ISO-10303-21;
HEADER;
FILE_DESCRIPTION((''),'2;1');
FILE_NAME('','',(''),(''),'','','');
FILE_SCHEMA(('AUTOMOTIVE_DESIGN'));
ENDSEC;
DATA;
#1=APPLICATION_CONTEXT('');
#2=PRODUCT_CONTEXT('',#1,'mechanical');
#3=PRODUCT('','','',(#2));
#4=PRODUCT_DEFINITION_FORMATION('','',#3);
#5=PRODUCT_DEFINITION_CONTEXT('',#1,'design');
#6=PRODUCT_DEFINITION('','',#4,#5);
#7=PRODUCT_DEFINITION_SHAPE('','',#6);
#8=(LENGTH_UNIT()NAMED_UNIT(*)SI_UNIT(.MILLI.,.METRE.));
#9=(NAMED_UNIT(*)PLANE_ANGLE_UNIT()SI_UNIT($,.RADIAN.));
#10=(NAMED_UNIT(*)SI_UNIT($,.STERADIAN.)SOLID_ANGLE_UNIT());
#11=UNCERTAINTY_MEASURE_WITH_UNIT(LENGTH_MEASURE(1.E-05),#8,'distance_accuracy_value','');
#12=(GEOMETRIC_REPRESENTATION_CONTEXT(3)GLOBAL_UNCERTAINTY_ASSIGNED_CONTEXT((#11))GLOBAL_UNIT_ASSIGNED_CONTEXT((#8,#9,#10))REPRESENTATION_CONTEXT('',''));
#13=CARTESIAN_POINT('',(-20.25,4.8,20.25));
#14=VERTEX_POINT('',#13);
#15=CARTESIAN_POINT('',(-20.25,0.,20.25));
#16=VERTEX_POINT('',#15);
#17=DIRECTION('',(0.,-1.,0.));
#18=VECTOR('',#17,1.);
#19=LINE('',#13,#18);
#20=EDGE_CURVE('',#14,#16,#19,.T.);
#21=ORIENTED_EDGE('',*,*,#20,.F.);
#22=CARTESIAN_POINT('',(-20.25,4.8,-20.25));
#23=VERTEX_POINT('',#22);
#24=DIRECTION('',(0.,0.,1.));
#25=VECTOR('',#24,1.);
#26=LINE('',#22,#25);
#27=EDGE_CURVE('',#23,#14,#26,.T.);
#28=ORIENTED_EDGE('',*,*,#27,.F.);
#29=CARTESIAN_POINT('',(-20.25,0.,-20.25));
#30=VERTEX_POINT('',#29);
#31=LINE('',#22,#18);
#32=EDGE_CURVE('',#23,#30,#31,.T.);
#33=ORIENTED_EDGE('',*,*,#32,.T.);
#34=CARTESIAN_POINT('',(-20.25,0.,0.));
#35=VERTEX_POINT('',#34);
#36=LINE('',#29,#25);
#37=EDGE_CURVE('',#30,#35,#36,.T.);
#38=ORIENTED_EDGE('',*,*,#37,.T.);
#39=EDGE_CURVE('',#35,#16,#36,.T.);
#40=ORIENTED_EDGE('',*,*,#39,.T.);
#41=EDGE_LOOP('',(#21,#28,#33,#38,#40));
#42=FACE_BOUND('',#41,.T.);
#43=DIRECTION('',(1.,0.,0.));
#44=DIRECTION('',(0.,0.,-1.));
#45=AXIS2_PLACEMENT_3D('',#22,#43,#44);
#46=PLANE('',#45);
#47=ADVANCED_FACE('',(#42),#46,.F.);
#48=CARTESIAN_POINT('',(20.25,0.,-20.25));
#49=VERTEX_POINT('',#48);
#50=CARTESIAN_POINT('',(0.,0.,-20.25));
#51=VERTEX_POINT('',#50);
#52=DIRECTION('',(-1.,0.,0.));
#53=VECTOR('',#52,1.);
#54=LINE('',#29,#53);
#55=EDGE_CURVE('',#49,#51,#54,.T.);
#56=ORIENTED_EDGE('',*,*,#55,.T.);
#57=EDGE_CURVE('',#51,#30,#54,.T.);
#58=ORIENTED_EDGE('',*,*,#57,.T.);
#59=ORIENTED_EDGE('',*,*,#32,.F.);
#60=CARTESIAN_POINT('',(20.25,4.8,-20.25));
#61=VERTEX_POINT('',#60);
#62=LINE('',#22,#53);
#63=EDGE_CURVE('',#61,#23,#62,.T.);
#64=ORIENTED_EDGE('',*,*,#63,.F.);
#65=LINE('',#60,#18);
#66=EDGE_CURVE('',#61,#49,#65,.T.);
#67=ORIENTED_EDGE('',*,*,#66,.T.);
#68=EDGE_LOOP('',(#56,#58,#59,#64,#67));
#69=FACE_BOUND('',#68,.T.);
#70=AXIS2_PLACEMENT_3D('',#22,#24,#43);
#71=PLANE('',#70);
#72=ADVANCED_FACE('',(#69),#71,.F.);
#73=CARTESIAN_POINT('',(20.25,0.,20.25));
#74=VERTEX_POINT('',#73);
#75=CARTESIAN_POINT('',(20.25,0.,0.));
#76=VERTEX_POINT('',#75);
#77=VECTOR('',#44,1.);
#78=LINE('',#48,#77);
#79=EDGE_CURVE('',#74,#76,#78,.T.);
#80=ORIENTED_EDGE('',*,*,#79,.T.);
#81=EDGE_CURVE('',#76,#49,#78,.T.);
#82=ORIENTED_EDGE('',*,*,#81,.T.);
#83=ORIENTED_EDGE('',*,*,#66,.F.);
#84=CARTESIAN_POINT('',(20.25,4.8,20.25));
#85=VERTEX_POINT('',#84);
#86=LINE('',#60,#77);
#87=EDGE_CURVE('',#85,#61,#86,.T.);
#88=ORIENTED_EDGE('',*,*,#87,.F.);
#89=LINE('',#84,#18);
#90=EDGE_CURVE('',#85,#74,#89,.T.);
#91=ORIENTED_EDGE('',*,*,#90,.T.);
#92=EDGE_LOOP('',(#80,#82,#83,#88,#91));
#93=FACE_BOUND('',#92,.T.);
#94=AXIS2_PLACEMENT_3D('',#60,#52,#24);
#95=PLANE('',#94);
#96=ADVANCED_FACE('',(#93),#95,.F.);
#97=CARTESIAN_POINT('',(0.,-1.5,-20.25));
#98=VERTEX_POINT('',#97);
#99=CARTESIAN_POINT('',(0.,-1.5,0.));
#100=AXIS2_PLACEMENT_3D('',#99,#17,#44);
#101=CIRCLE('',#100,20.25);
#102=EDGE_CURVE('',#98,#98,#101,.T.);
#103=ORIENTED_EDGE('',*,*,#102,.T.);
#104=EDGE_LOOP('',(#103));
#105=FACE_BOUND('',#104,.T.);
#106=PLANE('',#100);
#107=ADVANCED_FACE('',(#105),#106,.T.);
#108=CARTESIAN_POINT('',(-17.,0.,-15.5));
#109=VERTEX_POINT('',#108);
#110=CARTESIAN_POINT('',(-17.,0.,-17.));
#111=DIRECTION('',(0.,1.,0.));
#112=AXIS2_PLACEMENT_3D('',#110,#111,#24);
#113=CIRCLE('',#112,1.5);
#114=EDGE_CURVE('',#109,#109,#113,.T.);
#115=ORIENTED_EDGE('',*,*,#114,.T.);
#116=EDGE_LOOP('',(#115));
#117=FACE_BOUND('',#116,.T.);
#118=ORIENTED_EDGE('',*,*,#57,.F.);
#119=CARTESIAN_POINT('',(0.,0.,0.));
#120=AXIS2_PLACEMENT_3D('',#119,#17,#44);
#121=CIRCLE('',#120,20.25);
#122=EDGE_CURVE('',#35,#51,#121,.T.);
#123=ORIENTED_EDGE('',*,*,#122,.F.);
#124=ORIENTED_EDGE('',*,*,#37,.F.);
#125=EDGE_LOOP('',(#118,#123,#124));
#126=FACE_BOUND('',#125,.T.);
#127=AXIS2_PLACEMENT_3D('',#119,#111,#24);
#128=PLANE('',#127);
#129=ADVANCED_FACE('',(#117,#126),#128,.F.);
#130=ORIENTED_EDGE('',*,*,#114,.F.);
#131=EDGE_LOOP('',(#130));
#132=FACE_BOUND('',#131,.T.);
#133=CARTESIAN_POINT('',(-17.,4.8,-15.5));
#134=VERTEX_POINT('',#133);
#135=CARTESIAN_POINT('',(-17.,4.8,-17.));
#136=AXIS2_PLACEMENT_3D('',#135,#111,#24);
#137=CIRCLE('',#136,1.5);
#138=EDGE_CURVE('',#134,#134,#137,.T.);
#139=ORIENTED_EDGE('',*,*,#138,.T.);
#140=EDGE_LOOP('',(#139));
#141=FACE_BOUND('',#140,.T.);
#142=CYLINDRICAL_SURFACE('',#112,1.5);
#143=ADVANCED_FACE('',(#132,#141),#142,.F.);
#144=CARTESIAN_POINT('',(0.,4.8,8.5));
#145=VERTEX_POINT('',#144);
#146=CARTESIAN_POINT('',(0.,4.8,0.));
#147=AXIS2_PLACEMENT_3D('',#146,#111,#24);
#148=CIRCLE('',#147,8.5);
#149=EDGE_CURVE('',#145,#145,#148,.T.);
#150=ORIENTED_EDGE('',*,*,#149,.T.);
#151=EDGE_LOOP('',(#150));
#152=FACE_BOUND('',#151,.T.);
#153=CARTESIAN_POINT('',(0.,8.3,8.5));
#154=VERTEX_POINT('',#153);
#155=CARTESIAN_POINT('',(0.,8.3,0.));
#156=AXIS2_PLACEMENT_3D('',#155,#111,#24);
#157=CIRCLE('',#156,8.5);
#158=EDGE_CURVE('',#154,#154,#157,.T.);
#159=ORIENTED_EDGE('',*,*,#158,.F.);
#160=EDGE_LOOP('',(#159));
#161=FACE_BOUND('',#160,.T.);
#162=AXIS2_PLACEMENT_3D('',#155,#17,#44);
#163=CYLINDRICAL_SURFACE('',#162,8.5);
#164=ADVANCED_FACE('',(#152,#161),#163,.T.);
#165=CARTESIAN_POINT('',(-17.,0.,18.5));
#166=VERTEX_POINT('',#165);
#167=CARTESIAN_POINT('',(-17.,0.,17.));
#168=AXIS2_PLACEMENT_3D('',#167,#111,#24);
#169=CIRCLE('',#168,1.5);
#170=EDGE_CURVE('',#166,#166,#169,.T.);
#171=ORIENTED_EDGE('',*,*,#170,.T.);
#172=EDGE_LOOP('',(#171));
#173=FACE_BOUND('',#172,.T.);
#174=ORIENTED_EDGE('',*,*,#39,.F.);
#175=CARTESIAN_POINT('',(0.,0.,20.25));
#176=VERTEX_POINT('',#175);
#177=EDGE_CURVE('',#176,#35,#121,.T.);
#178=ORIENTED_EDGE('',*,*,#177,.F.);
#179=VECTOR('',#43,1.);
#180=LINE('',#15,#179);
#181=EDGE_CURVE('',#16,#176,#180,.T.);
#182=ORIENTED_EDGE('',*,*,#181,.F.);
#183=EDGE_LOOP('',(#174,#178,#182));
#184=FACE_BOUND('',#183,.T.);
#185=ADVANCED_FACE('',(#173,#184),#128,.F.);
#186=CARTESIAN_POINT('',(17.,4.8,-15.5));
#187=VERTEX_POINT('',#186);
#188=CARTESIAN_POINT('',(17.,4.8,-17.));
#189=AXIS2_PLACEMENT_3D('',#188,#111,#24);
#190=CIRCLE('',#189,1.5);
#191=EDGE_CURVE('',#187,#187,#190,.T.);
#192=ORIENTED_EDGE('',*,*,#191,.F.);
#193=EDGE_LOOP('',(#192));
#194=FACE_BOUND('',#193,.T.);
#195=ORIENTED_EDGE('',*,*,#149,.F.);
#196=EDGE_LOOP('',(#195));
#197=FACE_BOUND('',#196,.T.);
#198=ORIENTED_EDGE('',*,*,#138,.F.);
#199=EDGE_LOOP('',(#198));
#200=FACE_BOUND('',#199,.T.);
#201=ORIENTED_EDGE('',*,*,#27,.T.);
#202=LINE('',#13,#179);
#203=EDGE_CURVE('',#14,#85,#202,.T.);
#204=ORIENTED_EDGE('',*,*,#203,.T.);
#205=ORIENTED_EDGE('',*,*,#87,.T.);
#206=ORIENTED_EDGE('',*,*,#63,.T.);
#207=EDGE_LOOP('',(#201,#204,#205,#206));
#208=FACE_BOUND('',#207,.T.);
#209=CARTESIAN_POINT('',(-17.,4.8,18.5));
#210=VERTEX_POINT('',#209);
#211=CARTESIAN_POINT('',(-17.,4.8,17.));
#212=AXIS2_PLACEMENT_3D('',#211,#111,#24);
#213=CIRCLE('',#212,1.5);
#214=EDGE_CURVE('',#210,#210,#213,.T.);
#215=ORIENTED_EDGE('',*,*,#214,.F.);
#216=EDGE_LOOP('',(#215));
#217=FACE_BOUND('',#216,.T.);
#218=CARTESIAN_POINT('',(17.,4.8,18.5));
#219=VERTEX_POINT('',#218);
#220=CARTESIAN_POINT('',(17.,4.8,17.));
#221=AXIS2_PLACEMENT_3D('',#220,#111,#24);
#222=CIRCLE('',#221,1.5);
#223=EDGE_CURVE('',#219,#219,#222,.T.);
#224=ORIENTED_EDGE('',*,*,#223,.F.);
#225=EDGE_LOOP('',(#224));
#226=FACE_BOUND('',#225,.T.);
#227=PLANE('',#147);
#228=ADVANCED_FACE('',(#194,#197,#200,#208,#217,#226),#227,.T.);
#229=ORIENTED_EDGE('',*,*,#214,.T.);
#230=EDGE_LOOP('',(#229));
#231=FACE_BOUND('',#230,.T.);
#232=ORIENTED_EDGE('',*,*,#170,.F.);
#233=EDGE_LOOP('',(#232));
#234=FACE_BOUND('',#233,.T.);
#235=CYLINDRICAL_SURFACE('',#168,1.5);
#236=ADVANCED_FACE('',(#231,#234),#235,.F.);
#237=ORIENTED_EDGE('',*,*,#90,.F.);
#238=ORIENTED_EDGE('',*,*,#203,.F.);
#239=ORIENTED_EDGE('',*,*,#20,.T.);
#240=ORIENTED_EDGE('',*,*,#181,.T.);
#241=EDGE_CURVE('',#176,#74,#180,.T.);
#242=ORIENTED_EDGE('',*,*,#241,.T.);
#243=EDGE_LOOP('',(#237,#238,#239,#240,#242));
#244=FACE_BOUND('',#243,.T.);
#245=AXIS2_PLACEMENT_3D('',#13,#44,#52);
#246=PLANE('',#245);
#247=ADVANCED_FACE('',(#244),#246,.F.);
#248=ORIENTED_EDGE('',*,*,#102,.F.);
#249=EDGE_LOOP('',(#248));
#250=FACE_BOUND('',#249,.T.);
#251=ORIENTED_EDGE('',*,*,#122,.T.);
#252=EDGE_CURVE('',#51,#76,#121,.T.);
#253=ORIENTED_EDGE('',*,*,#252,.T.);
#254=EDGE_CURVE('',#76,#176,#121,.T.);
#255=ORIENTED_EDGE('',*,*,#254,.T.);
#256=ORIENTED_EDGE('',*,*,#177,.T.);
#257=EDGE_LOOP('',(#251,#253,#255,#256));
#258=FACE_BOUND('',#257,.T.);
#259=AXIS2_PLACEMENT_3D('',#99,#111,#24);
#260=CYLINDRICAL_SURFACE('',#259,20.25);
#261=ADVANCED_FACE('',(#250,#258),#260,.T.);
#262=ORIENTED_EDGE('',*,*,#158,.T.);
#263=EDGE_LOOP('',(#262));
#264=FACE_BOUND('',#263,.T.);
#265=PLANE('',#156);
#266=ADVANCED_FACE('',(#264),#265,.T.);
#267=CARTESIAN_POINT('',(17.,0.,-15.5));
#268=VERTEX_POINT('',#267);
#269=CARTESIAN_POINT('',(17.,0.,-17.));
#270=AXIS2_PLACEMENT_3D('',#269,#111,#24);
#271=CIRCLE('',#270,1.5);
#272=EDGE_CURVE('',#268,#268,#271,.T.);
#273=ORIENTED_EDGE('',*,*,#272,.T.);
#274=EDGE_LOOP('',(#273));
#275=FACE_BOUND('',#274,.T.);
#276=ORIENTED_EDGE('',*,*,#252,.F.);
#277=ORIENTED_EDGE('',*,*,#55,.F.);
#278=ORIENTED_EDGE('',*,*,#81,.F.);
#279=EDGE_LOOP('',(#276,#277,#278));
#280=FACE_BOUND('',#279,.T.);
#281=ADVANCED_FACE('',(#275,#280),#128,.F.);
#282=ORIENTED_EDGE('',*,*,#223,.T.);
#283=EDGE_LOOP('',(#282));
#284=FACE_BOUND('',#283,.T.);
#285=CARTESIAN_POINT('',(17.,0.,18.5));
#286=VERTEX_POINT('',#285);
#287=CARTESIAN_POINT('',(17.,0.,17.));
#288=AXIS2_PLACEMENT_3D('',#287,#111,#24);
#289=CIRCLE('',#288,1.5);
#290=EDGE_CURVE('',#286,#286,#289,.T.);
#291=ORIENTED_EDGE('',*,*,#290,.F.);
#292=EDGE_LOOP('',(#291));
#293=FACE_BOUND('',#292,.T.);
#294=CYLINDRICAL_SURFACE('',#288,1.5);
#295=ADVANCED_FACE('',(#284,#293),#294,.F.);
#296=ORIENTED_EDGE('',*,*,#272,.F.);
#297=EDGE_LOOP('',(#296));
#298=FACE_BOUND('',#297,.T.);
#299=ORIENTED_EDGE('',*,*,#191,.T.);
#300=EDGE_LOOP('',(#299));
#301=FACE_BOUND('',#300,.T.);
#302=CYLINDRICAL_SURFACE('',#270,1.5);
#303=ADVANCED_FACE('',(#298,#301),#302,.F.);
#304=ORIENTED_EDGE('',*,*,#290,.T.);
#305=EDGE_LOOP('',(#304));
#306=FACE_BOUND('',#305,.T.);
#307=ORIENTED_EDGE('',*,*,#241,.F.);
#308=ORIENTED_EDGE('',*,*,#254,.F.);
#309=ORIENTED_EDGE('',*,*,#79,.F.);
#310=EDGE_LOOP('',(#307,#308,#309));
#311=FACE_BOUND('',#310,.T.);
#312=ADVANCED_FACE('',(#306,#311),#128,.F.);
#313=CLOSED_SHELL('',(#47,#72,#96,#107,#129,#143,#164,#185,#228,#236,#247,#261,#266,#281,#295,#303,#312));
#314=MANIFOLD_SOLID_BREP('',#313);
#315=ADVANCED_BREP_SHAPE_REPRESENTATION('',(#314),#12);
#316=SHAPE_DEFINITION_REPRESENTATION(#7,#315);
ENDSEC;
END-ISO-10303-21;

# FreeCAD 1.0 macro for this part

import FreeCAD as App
import Part
import Sketcher

V = App.Vector
Q = App.Units.Quantity


def add_polygon(sketch, points):
    """Adds a closed chain of lines whose ends are joined by coincident constraints."""
    first, n = sketch.GeometryCount, len(points)
    for a, b in zip(points, points[1:] + points[:1]):
        sketch.addGeometry(Part.LineSegment(App.Vector(*a, 0), App.Vector(*b, 0)), False)
    for i in range(n):
        sketch.addConstraint(Sketcher.Constraint("Coincident", first + i, 2, first + (i + 1) % n, 1))

doc = App.newDocument("Part")
params = doc.addObject("Spreadsheet::Sheet", "Params")
for row, (alias, value) in enumerate([
    ("sketch1_width", "40.5 mm"),
    ("pad1_length", "4.8 mm"),
    ("sketch2_diameter", "17 mm"),
    ("pad2_length", "3.5 mm"),
    ("sketch3_diameter", "3 mm"),
    ("pocket1_length", "4.8 mm"),
    ("sketch4_diameter", "40.5 mm"),
    ("pad3_length", "1.5 mm"),
], start=1):
    params.set(f"A{row}", alias)
    params.set(f"B{row}", "=" + value)
    params.setAlias(f"B{row}", alias)

body = doc.addObject("PartDesign::Body", "Body")

# Sketch on XZ plane
sketch1 = body.newObject("Sketcher::SketchObject", "Sketch")
sketch1.AttachmentSupport = (doc.getObject("XZ_Plane"), [""])
sketch1.MapMode = "FlatFace"
add_polygon(sketch1, [(-20, -20), (-20, 20), (20, 20), (20, -20)])  # lines 0-3
sketch1.addConstraint([
    Sketcher.Constraint("Vertical", 0),
    Sketcher.Constraint("Horizontal", 1),
    Sketcher.Constraint("Vertical", 2),
    Sketcher.Constraint("Horizontal", 3),
    Sketcher.Constraint("Symmetric", 0, 2, 2, 2, -1, 1),
    Sketcher.Constraint("Equal", 3, 0),
    Sketcher.Constraint("DistanceX", 1, 1, 1, 2, Q("40.5 mm")),
])
sketch1.setExpression("Constraints[10]", "Params.sketch1_width")
pad1 = body.newObject("PartDesign::Pad", "Pad")
pad1.Profile = sketch1
pad1.setExpression("Length", "Params.pad1_length")
pad1.Reversed = True

# Sketch on XZ plane
sketch2 = body.newObject("Sketcher::SketchObject", "Sketch001")
sketch2.AttachmentSupport = (doc.getObject("XZ_Plane"), [""])
sketch2.MapMode = "FlatFace"
sketch2.AttachmentOffset = App.Placement(V(0, 0, -4.8), App.Rotation())
sketch2.addGeometry(Part.Circle(V(0, 0, 0), V(0, 0, 1), 8), False)
sketch2.addConstraint([
    Sketcher.Constraint("Coincident", 0, 3, -1, 1),
    Sketcher.Constraint("Diameter", 0, Q("17 mm")),
])
sketch2.setExpression("Constraints[1]", "Params.sketch2_diameter")
pad2 = body.newObject("PartDesign::Pad", "Pad001")
pad2.Profile = sketch2
pad2.setExpression("Length", "Params.pad2_length")
pad2.Reversed = True

# Sketch on XZ plane
sketch3 = body.newObject("Sketcher::SketchObject", "Sketch002")
sketch3.AttachmentSupport = (doc.getObject("XZ_Plane"), [""])
sketch3.MapMode = "FlatFace"
sketch3.AttachmentOffset = App.Placement(V(0, 0, -4.8), App.Rotation())
sketch3.addGeometry([
    Part.Circle(V(17, -17, 0), V(0, 0, 1), 1.5),
    Part.Circle(V(-17, -17, 0), V(0, 0, 1), 1.5),
    Part.Circle(V(-17, 17, 0), V(0, 0, 1), 1.5),
    Part.Circle(V(17, 17, 0), V(0, 0, 1), 1.5),
], False)
sketch3.addConstraint([
    Sketcher.Constraint("Equal", 0, 1),
    Sketcher.Constraint("Equal", 1, 2),
    Sketcher.Constraint("Equal", 2, 3),
    Sketcher.Constraint("Symmetric", 0, 3, 2, 3, -1, 1),
    Sketcher.Constraint("Symmetric", 1, 3, 3, 3, -1, 1),
    Sketcher.Constraint("Symmetric", 0, 3, 1, 3, -2),
    Sketcher.Constraint("Diameter", 0, Q("3 mm")),
    Sketcher.Constraint("DistanceX", -1, 1, 0, 3, Q("17 mm")),
    Sketcher.Constraint("DistanceY", 0, 3, -1, 1, Q("17 mm")),
])
sketch3.setExpression("Constraints[6]", "Params.sketch3_diameter")
pocket1 = body.newObject("PartDesign::Pocket", "Pocket")
pocket1.Profile = sketch3
pocket1.setExpression("Length", "Params.pocket1_length")
pocket1.Reversed = True

# Sketch on XZ plane
sketch4 = body.newObject("Sketcher::SketchObject", "Sketch003")
sketch4.AttachmentSupport = (doc.getObject("XZ_Plane"), [""])
sketch4.MapMode = "FlatFace"
sketch4.addGeometry(Part.Circle(V(0, 0, 0), V(0, 0, 1), 20), False)
sketch4.addConstraint([
    Sketcher.Constraint("Coincident", 0, 3, -1, 1),
    Sketcher.Constraint("Diameter", 0, Q("40.5 mm")),
])
sketch4.setExpression("Constraints[1]", "Params.sketch4_diameter")
pad3 = body.newObject("PartDesign::Pad", "Pad002")
pad3.Profile = sketch4
pad3.setExpression("Length", "Params.pad3_length")

doc.recompute()
